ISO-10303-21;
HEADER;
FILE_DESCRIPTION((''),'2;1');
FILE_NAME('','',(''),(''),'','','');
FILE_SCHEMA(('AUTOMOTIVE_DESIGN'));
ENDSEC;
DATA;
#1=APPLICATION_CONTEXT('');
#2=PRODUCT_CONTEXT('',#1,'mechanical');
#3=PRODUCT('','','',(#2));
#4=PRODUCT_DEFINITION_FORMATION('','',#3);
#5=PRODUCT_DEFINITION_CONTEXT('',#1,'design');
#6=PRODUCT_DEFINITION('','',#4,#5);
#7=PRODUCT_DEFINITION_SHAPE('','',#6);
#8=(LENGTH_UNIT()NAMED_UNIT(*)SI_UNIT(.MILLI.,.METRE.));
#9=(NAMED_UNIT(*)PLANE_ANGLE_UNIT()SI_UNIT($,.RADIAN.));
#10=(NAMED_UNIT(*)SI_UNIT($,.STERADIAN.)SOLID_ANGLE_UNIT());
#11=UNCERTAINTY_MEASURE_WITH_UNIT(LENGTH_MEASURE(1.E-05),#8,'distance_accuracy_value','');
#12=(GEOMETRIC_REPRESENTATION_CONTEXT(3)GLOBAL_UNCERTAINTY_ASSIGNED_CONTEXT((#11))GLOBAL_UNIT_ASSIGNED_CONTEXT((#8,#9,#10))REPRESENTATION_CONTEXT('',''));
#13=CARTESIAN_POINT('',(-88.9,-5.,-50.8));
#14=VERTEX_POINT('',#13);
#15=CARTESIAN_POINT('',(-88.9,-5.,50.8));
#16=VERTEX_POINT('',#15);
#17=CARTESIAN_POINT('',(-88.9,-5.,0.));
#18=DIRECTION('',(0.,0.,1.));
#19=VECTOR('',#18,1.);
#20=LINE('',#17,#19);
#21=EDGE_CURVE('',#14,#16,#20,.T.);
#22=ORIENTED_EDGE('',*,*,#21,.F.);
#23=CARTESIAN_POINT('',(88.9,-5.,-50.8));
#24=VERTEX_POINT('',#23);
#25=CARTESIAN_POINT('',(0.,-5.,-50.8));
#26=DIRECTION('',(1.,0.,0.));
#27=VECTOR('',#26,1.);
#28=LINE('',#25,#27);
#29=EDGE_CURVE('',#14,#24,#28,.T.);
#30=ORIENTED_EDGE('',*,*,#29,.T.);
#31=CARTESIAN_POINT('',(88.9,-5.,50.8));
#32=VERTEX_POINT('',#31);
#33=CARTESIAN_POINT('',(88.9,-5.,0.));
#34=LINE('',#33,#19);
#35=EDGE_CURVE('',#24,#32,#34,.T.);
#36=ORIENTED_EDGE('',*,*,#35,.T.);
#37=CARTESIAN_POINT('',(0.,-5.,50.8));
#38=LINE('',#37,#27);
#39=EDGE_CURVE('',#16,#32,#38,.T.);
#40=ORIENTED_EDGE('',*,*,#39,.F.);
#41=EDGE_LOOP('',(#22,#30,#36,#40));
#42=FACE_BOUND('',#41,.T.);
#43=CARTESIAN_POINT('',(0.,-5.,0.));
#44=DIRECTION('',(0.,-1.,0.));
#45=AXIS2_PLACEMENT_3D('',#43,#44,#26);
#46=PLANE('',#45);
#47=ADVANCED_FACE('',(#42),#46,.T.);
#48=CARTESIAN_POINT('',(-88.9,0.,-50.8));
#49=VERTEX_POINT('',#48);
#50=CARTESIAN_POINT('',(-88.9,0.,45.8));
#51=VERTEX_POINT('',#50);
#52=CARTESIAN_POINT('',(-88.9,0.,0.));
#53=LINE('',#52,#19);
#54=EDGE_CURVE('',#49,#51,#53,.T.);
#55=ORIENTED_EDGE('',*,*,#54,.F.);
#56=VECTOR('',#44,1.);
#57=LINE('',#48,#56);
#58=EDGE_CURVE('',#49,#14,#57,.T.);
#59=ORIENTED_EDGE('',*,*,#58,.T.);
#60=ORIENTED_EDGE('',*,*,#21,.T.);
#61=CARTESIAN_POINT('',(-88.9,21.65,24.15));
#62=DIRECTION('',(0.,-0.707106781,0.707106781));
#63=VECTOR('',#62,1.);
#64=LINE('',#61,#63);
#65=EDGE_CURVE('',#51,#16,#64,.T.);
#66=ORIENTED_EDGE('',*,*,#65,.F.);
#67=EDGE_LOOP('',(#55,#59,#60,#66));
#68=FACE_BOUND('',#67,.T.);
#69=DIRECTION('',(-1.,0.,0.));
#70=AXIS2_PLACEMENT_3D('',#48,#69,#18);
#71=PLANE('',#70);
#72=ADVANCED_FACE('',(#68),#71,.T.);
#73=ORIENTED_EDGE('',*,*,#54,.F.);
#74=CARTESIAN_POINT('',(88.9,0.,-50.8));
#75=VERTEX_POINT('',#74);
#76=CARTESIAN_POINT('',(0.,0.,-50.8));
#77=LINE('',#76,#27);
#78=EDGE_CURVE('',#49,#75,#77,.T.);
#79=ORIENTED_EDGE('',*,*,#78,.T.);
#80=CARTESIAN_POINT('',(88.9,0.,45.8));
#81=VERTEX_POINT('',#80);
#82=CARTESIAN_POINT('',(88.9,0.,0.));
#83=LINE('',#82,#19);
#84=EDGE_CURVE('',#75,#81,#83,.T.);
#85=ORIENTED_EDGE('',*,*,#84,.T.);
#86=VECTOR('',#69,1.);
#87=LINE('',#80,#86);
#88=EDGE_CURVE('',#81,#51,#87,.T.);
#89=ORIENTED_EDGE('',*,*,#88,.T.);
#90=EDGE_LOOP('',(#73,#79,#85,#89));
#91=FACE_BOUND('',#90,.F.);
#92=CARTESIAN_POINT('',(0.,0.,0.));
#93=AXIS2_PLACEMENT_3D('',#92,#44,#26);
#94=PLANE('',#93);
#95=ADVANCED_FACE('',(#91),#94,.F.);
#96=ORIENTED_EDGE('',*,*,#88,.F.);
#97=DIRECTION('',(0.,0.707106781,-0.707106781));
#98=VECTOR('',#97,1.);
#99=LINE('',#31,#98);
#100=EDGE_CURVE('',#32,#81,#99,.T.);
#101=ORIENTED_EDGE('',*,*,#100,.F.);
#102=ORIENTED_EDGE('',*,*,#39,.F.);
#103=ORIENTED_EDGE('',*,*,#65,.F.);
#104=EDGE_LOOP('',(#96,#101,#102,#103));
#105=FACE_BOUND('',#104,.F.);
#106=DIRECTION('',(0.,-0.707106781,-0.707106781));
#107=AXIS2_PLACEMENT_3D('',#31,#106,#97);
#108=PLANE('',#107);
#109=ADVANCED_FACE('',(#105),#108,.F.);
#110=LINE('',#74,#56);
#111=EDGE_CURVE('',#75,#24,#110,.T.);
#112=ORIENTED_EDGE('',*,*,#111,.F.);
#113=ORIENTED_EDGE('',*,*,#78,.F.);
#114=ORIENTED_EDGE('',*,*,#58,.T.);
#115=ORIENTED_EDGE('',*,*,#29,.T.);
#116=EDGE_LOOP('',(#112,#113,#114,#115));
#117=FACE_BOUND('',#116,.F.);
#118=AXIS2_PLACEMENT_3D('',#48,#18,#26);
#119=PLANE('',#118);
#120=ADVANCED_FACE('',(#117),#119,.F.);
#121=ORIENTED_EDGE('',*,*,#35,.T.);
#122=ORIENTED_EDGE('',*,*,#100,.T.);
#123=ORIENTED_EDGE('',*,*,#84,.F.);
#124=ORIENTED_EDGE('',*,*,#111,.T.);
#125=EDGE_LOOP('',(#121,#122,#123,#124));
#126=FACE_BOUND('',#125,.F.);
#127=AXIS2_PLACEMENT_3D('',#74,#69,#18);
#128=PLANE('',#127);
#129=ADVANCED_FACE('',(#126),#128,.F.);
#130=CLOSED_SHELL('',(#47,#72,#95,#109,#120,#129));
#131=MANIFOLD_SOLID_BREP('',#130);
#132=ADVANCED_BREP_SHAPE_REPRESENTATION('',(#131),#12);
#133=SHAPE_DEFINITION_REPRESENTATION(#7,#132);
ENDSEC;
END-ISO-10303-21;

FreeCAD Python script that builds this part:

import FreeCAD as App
import Part
import Sketcher
Q = App.Units.Quantity


def add_polygon(sketch, points):
    """Adds a closed chain of lines whose ends are joined by coincident constraints."""
    first, n = sketch.GeometryCount, len(points)
    for a, b in zip(points, points[1:] + points[:1]):
        sketch.addGeometry(Part.LineSegment(App.Vector(*a, 0), App.Vector(*b, 0)), False)
    for i in range(n):
        sketch.addConstraint(Sketcher.Constraint("Coincident", first + i, 2, first + (i + 1) % n, 1))

doc = App.newDocument("Part")
params = doc.addObject("Spreadsheet::Sheet", "Params")
for row, (alias, value) in enumerate([
    ("sketch1_width", "7 in"),
    ("sketch1_height", "4 in"),
    ("pad1_length", "5 mm"),
], start=1):
    params.set(f"A{row}", alias)
    params.set(f"B{row}", "=" + value)
    params.setAlias(f"B{row}", alias)

body = doc.addObject("PartDesign::Body", "Body")

# Sketch on XZ plane
sketch1 = body.newObject("Sketcher::SketchObject", "Sketch")
sketch1.AttachmentSupport = (doc.getObject("XZ_Plane"), [""])
sketch1.MapMode = "FlatFace"
add_polygon(sketch1, [(-89, 51), (-89, -51), (89, -51), (89, 51)])  # lines 0-3
sketch1.addConstraint(Sketcher.Constraint("Vertical", 0))
sketch1.addConstraint(Sketcher.Constraint("Horizontal", 1))
sketch1.addConstraint(Sketcher.Constraint("Vertical", 2))
sketch1.addConstraint(Sketcher.Constraint("Horizontal", 3))
sketch1.addConstraint(Sketcher.Constraint("Symmetric", 0, 2, 2, 2, -1, 1))
sketch1.addConstraint(Sketcher.Constraint("DistanceX", 1, 1, 1, 2, Q("7 in")))
sketch1.addConstraint(Sketcher.Constraint("DistanceY", 0, 2, 0, 1, Q("4 in")))
sketch1.setExpression("Constraints[9]", "Params.sketch1_width")
sketch1.setExpression("Constraints[10]", "Params.sketch1_height")
pad1 = body.newObject("PartDesign::Pad", "Pad")
pad1.Profile = sketch1
pad1.setExpression("Length", "Params.pad1_length")

# Sketch on YZ plane
sketch2 = body.newObject("Sketcher::SketchObject", "Sketch001")
sketch2.AttachmentSupport = (doc.getObject("YZ_Plane"), [""])
sketch2.MapMode = "FlatFace"
sketch2.AttachmentOffset = App.Placement(App.Vector(0, 0, 3.5 * 25.4), App.Rotation())
add_polygon(sketch2, [(0, 51), (-5, 51), (0, 46)])  # lines 0-2
sketch2.addConstraint(Sketcher.Constraint("Horizontal", 0))
sketch2.addConstraint(Sketcher.Constraint("Vertical", 2))
sketch2.addConstraint(Sketcher.Constraint("PointOnObject", 1, 2, -2))
sketch2.addConstraint(Sketcher.Constraint("Equal", 0, 2))
sketch2.addConstraint(Sketcher.Constraint("DistanceY", -1, 1, 0, 2, Q("2 in")))
sketch2.addConstraint(Sketcher.Constraint("DistanceX", 0, 2, 0, 1, Q("5 mm")))
pocket1 = body.newObject("PartDesign::Pocket", "Pocket")
pocket1.Profile = sketch2
pocket1.Type = "ThroughAll"

doc.recompute()
